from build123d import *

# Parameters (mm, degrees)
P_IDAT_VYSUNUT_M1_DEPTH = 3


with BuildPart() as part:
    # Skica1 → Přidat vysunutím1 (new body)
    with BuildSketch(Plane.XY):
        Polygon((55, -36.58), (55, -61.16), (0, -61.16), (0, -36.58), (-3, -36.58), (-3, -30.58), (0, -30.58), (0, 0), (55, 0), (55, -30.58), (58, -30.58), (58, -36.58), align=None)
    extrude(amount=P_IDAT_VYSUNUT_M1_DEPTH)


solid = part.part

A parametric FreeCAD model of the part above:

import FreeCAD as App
import Part
import Sketcher
from FreeCAD import Vector
Q = App.Units.Quantity

doc = App.newDocument("Part")
body = doc.addObject("PartDesign::Body", "Body")

sketch1 = doc.addObject("Sketcher::SketchObject", "Sketch")
body.addObject(sketch1)
sketch1.AttachmentSupport = (doc.XY_Plane, [""])
sketch1.MapMode = "FlatFace"
sketch1.addGeometry(Part.LineSegment(Vector(55, -61.2, 0), Vector(55, -36.6, 0)), False)
sketch1.addGeometry(Part.LineSegment(Vector(55, -36.6, 0), Vector(58, -36.6, 0)), False)
sketch1.addGeometry(Part.LineSegment(Vector(58, -36.6, 0), Vector(58, -30.6, 0)), False)
sketch1.addGeometry(Part.LineSegment(Vector(58, -30.6, 0), Vector(55, -30.6, 0)), False)
sketch1.addGeometry(Part.LineSegment(Vector(55, -30.6, 0), Vector(55, 0, 0)), False)
sketch1.addGeometry(Part.LineSegment(Vector(55, 0, 0), Vector(0, 0, 0)), False)
sketch1.addGeometry(Part.LineSegment(Vector(0, 0, 0), Vector(0, -30.6, 0)), False)
sketch1.addGeometry(Part.LineSegment(Vector(0, -30.6, 0), Vector(-3, -30.6, 0)), False)
sketch1.addGeometry(Part.LineSegment(Vector(-3, -30.6, 0), Vector(-3, -36.6, 0)), False)
sketch1.addGeometry(Part.LineSegment(Vector(-3, -36.6, 0), Vector(0, -36.6, 0)), False)
sketch1.addGeometry(Part.LineSegment(Vector(0, -36.6, 0), Vector(0, -61.2, 0)), False)
sketch1.addGeometry(Part.LineSegment(Vector(0, -61.2, 0), Vector(55, -61.2, 0)), False)
sketch1.addConstraint(Sketcher.Constraint("Coincident", 0, 2, 1, 1))
sketch1.addConstraint(Sketcher.Constraint("Coincident", 1, 2, 2, 1))
sketch1.addConstraint(Sketcher.Constraint("Coincident", 2, 2, 3, 1))
sketch1.addConstraint(Sketcher.Constraint("Coincident", 3, 2, 4, 1))
sketch1.addConstraint(Sketcher.Constraint("Coincident", 4, 2, 5, 1))
sketch1.addConstraint(Sketcher.Constraint("Coincident", 5, 2, 6, 1))
sketch1.addConstraint(Sketcher.Constraint("Coincident", 6, 2, 7, 1))
sketch1.addConstraint(Sketcher.Constraint("Coincident", 7, 2, 8, 1))
sketch1.addConstraint(Sketcher.Constraint("Coincident", 8, 2, 9, 1))
sketch1.addConstraint(Sketcher.Constraint("Coincident", 9, 2, 10, 1))
sketch1.addConstraint(Sketcher.Constraint("Coincident", 10, 2, 11, 1))
sketch1.addConstraint(Sketcher.Constraint("Coincident", 11, 2, 0, 1))
sketch1.addConstraint(Sketcher.Constraint("Vertical", 0))
sketch1.addConstraint(Sketcher.Constraint("Horizontal", 1))
sketch1.addConstraint(Sketcher.Constraint("Vertical", 2))
sketch1.addConstraint(Sketcher.Constraint("Horizontal", 3))
sketch1.addConstraint(Sketcher.Constraint("Vertical", 4))
sketch1.addConstraint(Sketcher.Constraint("Horizontal", 5))
sketch1.addConstraint(Sketcher.Constraint("Vertical", 6))
sketch1.addConstraint(Sketcher.Constraint("Horizontal", 7))
sketch1.addConstraint(Sketcher.Constraint("Vertical", 8))
sketch1.addConstraint(Sketcher.Constraint("Horizontal", 9))
sketch1.addConstraint(Sketcher.Constraint("Vertical", 10))
sketch1.addConstraint(Sketcher.Constraint("Horizontal", 11))
sketch1.addConstraint(Sketcher.Constraint("Coincident", 5, 2, -1, 1))
sketch1.addConstraint(Sketcher.Constraint("PointOnObject", 9, 2, -2))
sketch1.addConstraint(Sketcher.Constraint("Horizontal", 3, 2, 6, 2))
sketch1.addConstraint(Sketcher.Constraint("Horizontal", 1, 2, 8, 2))
sketch1.addConstraint(Sketcher.Constraint("Vertical", 0, 2, 3, 2))
sketch1.addConstraint(Sketcher.Constraint("Equal", 3, 7))
sketch1.addConstraint(Sketcher.Constraint("DistanceX", 1, 1, 1, 2, Q("3 mm")))
sketch1.addConstraint(Sketcher.Constraint("DistanceX", 5, 2, 5, 1, Q("55 mm")))
sketch1.addConstraint(Sketcher.Constraint("DistanceY", 2, 1, 2, 2, Q("6 mm")))
sketch1.addConstraint(Sketcher.Constraint("DistanceY", 0, 1, 0, 2, Q("24.58 mm")))
sketch1.addConstraint(Sketcher.Constraint("DistanceY", 4, 1, 4, 2, Q("30.58 mm")))
pad1 = doc.addObject("PartDesign::Pad", "Pad")
body.addObject(pad1)
pad1.Profile = sketch1
pad1.Length = 3

doc.recompute()
